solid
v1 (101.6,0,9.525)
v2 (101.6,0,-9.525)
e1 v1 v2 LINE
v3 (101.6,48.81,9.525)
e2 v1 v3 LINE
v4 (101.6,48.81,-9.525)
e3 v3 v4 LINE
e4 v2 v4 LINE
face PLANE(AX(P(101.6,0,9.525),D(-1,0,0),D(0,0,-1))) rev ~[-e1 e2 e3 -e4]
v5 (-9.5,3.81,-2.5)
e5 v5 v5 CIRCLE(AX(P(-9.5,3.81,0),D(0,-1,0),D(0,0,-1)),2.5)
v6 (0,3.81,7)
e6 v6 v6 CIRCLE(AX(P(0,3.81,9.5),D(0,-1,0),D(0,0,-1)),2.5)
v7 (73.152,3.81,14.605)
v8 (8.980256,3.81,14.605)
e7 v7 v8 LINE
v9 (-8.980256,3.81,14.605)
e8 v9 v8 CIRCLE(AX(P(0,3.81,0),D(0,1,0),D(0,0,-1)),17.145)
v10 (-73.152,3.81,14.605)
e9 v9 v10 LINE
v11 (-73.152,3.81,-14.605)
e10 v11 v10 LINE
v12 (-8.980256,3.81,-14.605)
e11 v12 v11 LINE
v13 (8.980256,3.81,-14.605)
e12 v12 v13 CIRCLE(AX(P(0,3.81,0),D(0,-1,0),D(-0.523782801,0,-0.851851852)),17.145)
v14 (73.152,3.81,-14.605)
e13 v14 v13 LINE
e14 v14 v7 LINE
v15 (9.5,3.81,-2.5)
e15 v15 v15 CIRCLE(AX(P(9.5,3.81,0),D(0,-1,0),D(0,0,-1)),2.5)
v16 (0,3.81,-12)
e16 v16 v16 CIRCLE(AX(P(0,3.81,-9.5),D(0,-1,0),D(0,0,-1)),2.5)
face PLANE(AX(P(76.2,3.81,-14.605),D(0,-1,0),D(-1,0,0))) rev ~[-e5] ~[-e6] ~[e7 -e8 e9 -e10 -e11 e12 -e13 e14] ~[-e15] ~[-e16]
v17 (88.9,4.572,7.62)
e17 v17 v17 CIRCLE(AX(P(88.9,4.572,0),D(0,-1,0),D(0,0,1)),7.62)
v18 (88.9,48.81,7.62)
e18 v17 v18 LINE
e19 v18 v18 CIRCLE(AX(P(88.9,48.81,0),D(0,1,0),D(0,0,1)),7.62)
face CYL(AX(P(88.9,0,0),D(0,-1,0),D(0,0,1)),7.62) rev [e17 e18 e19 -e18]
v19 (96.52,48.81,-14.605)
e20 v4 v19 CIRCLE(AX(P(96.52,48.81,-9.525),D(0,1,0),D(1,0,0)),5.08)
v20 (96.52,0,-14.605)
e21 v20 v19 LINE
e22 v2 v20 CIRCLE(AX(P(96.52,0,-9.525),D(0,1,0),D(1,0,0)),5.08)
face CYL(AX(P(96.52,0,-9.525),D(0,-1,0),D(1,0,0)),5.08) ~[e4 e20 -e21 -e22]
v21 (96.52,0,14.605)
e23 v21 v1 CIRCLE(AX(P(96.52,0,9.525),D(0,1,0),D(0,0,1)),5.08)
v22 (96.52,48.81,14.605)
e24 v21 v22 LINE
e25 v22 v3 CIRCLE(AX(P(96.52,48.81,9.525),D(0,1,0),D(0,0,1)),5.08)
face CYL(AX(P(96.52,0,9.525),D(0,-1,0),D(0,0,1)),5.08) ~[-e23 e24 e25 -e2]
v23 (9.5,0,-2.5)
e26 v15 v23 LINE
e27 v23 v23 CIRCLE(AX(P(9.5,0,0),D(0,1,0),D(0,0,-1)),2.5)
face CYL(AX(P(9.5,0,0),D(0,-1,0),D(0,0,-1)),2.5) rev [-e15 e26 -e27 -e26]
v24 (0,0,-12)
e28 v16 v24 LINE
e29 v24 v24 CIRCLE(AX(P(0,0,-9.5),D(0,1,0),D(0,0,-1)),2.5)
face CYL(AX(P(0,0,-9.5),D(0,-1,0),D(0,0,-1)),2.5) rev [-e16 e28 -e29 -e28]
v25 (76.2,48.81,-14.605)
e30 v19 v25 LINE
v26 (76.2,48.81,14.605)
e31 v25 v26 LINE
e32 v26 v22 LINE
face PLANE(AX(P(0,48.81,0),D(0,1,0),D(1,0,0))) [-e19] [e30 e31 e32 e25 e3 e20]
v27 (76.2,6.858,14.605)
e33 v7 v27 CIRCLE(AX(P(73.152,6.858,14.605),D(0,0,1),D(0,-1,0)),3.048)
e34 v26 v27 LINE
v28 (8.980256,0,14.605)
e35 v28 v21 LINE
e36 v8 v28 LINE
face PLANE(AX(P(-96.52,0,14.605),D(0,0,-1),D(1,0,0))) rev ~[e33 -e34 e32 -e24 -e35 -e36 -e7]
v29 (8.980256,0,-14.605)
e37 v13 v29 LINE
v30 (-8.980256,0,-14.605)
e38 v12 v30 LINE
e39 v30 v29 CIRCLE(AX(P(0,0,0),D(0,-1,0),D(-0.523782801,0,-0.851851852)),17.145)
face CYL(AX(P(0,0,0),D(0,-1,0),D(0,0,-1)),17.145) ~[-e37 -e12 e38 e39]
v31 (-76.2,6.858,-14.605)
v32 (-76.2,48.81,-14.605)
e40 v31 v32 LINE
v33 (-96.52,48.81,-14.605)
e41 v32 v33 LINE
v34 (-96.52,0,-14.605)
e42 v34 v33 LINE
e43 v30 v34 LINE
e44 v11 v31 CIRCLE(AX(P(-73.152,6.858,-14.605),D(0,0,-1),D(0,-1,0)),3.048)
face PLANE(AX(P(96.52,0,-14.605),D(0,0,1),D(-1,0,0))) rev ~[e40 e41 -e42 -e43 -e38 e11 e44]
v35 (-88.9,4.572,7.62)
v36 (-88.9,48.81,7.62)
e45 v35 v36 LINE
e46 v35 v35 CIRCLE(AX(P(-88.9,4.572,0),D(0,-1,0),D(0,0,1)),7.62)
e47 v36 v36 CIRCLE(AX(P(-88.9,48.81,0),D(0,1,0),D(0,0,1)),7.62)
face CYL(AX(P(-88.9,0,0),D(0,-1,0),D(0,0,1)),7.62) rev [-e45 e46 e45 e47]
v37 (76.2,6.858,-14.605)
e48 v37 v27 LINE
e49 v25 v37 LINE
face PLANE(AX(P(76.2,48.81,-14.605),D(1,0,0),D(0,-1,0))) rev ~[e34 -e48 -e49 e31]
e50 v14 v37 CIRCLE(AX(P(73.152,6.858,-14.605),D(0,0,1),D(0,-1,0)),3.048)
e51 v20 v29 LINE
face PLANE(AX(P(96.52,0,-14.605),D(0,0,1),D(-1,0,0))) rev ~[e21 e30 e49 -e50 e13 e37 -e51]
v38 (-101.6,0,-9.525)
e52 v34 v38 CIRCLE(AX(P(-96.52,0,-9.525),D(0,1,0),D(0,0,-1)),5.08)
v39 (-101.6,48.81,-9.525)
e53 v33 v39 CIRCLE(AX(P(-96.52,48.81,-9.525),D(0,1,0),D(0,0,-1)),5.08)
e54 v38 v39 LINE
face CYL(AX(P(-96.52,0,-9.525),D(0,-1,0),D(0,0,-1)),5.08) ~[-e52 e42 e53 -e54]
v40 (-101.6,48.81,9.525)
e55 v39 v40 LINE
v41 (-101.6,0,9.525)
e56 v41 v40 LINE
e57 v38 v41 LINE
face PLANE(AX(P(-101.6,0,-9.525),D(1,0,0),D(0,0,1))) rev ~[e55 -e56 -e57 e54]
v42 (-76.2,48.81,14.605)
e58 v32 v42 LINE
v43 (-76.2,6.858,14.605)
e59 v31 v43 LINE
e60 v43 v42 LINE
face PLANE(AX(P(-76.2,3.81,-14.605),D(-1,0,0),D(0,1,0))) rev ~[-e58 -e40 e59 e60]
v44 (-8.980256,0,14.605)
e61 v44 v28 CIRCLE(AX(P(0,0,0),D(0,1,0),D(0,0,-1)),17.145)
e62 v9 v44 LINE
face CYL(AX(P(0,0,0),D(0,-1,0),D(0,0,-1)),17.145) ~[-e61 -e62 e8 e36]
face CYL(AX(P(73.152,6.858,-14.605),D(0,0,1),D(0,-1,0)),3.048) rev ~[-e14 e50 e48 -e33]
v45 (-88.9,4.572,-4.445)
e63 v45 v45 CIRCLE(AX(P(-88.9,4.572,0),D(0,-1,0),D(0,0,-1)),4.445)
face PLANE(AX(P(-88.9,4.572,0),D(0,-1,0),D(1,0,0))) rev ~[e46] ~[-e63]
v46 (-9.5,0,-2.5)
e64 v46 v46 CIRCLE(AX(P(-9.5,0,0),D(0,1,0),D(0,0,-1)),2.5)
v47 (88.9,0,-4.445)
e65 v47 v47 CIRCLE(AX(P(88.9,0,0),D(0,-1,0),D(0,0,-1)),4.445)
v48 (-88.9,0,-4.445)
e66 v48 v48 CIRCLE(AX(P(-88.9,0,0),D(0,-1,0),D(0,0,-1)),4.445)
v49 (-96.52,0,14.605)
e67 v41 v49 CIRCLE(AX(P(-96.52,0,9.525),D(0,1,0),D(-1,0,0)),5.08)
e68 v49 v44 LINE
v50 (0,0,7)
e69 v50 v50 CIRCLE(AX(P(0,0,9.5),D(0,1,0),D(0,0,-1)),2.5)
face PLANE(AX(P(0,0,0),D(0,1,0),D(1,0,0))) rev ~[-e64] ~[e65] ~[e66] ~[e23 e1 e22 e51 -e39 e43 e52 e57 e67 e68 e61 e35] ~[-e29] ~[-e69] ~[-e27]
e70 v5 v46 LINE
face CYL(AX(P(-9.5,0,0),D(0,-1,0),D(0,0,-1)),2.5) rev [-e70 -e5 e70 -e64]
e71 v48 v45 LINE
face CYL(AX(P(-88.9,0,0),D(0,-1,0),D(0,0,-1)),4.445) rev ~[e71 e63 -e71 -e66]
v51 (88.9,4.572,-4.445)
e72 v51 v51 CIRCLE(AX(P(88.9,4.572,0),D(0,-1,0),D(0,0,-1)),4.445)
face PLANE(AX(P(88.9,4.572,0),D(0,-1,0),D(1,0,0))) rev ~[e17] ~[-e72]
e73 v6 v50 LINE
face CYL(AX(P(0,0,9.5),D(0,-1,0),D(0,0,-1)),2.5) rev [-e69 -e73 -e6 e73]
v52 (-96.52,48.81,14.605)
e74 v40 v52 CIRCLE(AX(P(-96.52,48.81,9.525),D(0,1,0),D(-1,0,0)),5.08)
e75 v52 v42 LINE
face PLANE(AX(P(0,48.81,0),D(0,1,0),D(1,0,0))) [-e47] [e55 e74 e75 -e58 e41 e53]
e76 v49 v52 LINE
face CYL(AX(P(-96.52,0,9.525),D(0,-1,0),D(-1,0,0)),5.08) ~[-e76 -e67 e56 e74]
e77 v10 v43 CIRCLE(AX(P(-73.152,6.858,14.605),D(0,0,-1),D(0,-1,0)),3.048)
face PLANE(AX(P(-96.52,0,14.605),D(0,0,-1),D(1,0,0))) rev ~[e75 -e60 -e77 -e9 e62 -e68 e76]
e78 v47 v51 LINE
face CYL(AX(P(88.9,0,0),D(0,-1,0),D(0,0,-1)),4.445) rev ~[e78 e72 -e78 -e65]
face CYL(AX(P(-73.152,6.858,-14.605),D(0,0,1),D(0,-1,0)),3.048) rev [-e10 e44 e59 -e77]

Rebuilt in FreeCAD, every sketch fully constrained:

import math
import FreeCAD as App
import Part
import Sketcher

V = App.Vector
Q = App.Units.Quantity


def edges_at(feature, points):
    """Names of the edges that pass closest to the given points."""
    edges = feature.Shape.Edges
    near = lambda p: min(range(len(edges)), key=lambda i: edges[i].distToShape(Part.Vertex(*p))[0])
    return sorted({f"Edge{near(p) + 1}" for p in points})


def add_polygon(sketch, points):
    """Adds a closed chain of lines whose ends are joined by coincident constraints."""
    first, n = sketch.GeometryCount, len(points)
    for a, b in zip(points, points[1:] + points[:1]):
        sketch.addGeometry(Part.LineSegment(App.Vector(*a, 0), App.Vector(*b, 0)), False)
    for i in range(n):
        sketch.addConstraint(Sketcher.Constraint("Coincident", first + i, 2, first + (i + 1) % n, 1))

doc = App.newDocument("Part")
params = doc.addObject("Spreadsheet::Sheet", "Params")
for row, (alias, value) in enumerate([
    ("sketch1_diameter", "1.35 in"),
    ("pad1_length", "0.15 in"),
    ("sketch2_diameter", "0.6 in"),
    ("sketch2_radius", "0.2 in"),
    ("sketch2_width", "7.6 in"),
    ("sketch2_height", "0.75 in"),
    ("pad2_length", "45 mm"),
    ("pad2_length2", "0.15 in"),
    ("sketch3_width", "6 in"),
    ("sketch4_diameter", "0.7 in"),
    ("sketch4_diameter2", "0.35 in"),
    ("pad3_length", "0.18 in"),
    ("fillet_radius", "0.12 in"),
], start=1):
    params.set(f"A{row}", alias)
    params.set(f"B{row}", "=" + value)
    params.setAlias(f"B{row}", alias)

body = doc.addObject("PartDesign::Body", "Body")

# Sketch on XZ plane
sketch1 = doc.addObject("Sketcher::SketchObject", "Sketch")
body.addObject(sketch1)
sketch1.AttachmentSupport = (doc.XZ_Plane, [""])
sketch1.MapMode = "FlatFace"
sketch1.addGeometry([
    Part.Circle(V(0, 0, 0), V(0, 0, 1), 17.145),  # 0
    Part.Circle(V(0, 9.5, 0), V(0, 0, 1), 2.5),  # 1
    Part.Circle(V(9.5, 0, 0), V(0, 0, 1), 2.5),  # 2
    Part.Circle(V(-9.5, 0, 0), V(0, 0, 1), 2.5),  # 3
    Part.Circle(V(0, -9.5, 0), V(0, 0, 1), 2.5),  # 4
], False)
sketch1.addConstraint([
    Sketcher.Constraint("Coincident", 0, 3, -1, 1),
    Sketcher.Constraint("Equal", 1, 2),
    Sketcher.Constraint("Equal", 2, 3),
    Sketcher.Constraint("Equal", 3, 4),
    Sketcher.Constraint("Symmetric", 2, 3, 3, 3, -1, 1),
    Sketcher.Constraint("Symmetric", 1, 3, 4, 3, -1, 1),
    Sketcher.Constraint("PointOnObject", 1, 3, -2),
    Sketcher.Constraint("PointOnObject", 2, 3, -1),
    Sketcher.Constraint("Diameter", 0, Q("1.35 in")),
    Sketcher.Constraint("Diameter", 1, 5.0),
    Sketcher.Constraint("DistanceY", -1, 1, 1, 3, 9.5),
    Sketcher.Constraint("DistanceX", -1, 1, 2, 3, 9.5),
])
sketch1.setExpression("Constraints[8]", "Params.sketch1_diameter")
pad1 = doc.addObject("PartDesign::Pad", "Pad")
body.addObject(pad1)
pad1.Profile = sketch1
pad1.setExpression("Length", "Params.pad1_length")
pad1.Reversed = True

# Sketch on XZ plane
sketch2 = doc.addObject("Sketcher::SketchObject", "Sketch001")
body.addObject(sketch2)
sketch2.AttachmentSupport = (doc.XZ_Plane, [""])
sketch2.MapMode = "FlatFace"
sketch2.AttachmentOffset = App.Placement(V(0, 0, -0.15 * 25.4), App.Rotation())
sketch2.addGeometry([
    Part.LineSegment(V(-96.52, 14.605, 0), V(96.52, 14.605, 0)),  # 0
    Part.ArcOfCircle(Part.Circle(V(96.52, 9.525, 0), V(0, 0, 1), 5.08), math.radians(0), math.radians(90)),  # 1
    Part.LineSegment(V(101.6, 9.525, 0), V(101.6, -9.525, 0)),  # 2
    Part.ArcOfCircle(Part.Circle(V(96.52, -9.525, 0), V(0, 0, 1), 5.08), math.radians(-90), math.radians(0)),  # 3
    Part.LineSegment(V(96.52, -14.605, 0), V(-96.52, -14.605, 0)),  # 4
    Part.ArcOfCircle(Part.Circle(V(-96.52, -9.525, 0), V(0, 0, 1), 5.08), math.radians(-180), math.radians(-90)),  # 5
    Part.LineSegment(V(-101.6, -9.525, 0), V(-101.6, 9.525, 0)),  # 6
    Part.ArcOfCircle(Part.Circle(V(-96.52, 9.525, 0), V(0, 0, 1), 5.08), math.radians(90), math.radians(180)),  # 7
    Part.Circle(V(0, 9.5, 0), V(0, 0, 1), 2.5),  # 8
    Part.Circle(V(-88.9, 0, 0), V(0, 0, 1), 7.62),  # 9
    Part.Circle(V(-9.5, 0, 0), V(0, 0, 1), 2.5),  # 10
    Part.Circle(V(9.5, 0, 0), V(0, 0, 1), 2.5),  # 11
    Part.Circle(V(88.9, 0, 0), V(0, 0, 1), 7.62),  # 12
    Part.Circle(V(0, -9.5, 0), V(0, 0, 1), 2.5),  # 13
], False)
sketch2.addConstraint([
    Sketcher.Constraint("Tangent", 0, 2, 1, 2),
    Sketcher.Constraint("Tangent", 1, 1, 2, 1),
    Sketcher.Constraint("Tangent", 2, 2, 3, 2),
    Sketcher.Constraint("Tangent", 3, 1, 4, 1),
    Sketcher.Constraint("Tangent", 4, 2, 5, 2),
    Sketcher.Constraint("Tangent", 5, 1, 6, 1),
    Sketcher.Constraint("Tangent", 6, 2, 7, 2),
    Sketcher.Constraint("Tangent", 7, 1, 0, 1),
    Sketcher.Constraint("Horizontal", 0),
    Sketcher.Constraint("Vertical", 2),
    Sketcher.Constraint("Horizontal", 4),
    Sketcher.Constraint("Vertical", 6),
    Sketcher.Constraint("Equal", 1, 3),
    Sketcher.Constraint("Equal", 3, 5),
    Sketcher.Constraint("Equal", 5, 7),
    Sketcher.Constraint("Equal", 8, 10),
    Sketcher.Constraint("Equal", 10, 11),
    Sketcher.Constraint("Equal", 9, 12),
    Sketcher.Constraint("Equal", 11, 13),
    Sketcher.Constraint("Symmetric", 1, 3, 5, 3, -1, 1),
    Sketcher.Constraint("Symmetric", 10, 3, 11, 3, -1, 1),
    Sketcher.Constraint("Symmetric", 9, 3, 12, 3, -1, 1),
    Sketcher.Constraint("Symmetric", 8, 3, 13, 3, -1, 1),
    Sketcher.Constraint("PointOnObject", 8, 3, -2),
    Sketcher.Constraint("PointOnObject", 9, 3, -1),
    Sketcher.Constraint("PointOnObject", 10, 3, -1),
    Sketcher.Constraint("Diameter", 9, Q("0.6 in")),
    Sketcher.Constraint("Radius", 1, Q("0.2 in")),
    Sketcher.Constraint("DistanceX", 0, 1, 0, 2, Q("7.6 in")),
    Sketcher.Constraint("DistanceY", 2, 2, 2, 1, Q("0.75 in")),
    Sketcher.Constraint("DistanceX", 9, 3, -1, 1, Q("3.5 in")),
    Sketcher.Constraint("Diameter", 8, 5.0),
    Sketcher.Constraint("DistanceY", -1, 1, 8, 3, 9.5),
    Sketcher.Constraint("DistanceX", 10, 3, -1, 1, 9.5),
])
sketch2.setExpression("Constraints[26]", "Params.sketch2_diameter")
sketch2.setExpression("Constraints[27]", "Params.sketch2_radius")
sketch2.setExpression("Constraints[28]", "Params.sketch2_width")
sketch2.setExpression("Constraints[29]", "Params.sketch2_height")
pad2 = doc.addObject("PartDesign::Pad", "Pad001")
body.addObject(pad2)
pad2.Profile = sketch2
pad2.Type = "TwoLengths"
pad2.setExpression("Length", "Params.pad2_length")
pad2.setExpression("Length2", "Params.pad2_length2")
pad2.Reversed = True

# Sketch on XY plane
sketch3 = doc.addObject("Sketcher::SketchObject", "Sketch002")
body.addObject(sketch3)
sketch3.AttachmentSupport = (doc.XY_Plane, [""])
sketch3.MapMode = "FlatFace"
sketch3.AttachmentOffset = App.Placement(V(0, 0, -0.575 * 25.4), App.Rotation())
add_polygon(sketch3, [(76.2, 3.81), (-76.2, 3.81), (-76.2, 48.81), (76.2, 48.81)])  # lines 0-3
sketch3.addConstraint([
    Sketcher.Constraint("Horizontal", 0),
    Sketcher.Constraint("Vertical", 1),
    Sketcher.Constraint("Horizontal", 2),
    Sketcher.Constraint("Vertical", 3),
    Sketcher.Constraint("DistanceX", 0, 2, 0, 1, Q("6 in")),
    Sketcher.Constraint("DistanceX", 0, 2, -1, 1, Q("3 in")),
    Sketcher.Constraint("DistanceY", -1, 1, 0, 2, Q("0.15 in")),
    Sketcher.Constraint("DistanceY", 1, 1, 1, 2, 45.0),
])
sketch3.setExpression("Constraints[8]", "Params.sketch3_width")
pocket1 = doc.addObject("PartDesign::Pocket", "Pocket")
body.addObject(pocket1)
pocket1.Profile = sketch3
pocket1.Type = "ThroughAll"
pocket1.Reversed = True

# Sketch on XZ plane
sketch4 = doc.addObject("Sketcher::SketchObject", "Sketch003")
body.addObject(sketch4)
sketch4.AttachmentSupport = (doc.XZ_Plane, [""])
sketch4.MapMode = "FlatFace"
sketch4.addGeometry([
    Part.Circle(V(-88.9, 0, 0), V(0, 0, 1), 8.89),
    Part.Circle(V(-88.9, 0, 0), V(0, 0, 1), 4.445),
    Part.Circle(V(88.9, 0, 0), V(0, 0, 1), 8.89),
    Part.Circle(V(88.9, 0, 0), V(0, 0, 1), 4.445),
], False)
sketch4.addConstraint([
    Sketcher.Constraint("Coincident", 1, 3, 0, 3),
    Sketcher.Constraint("Coincident", 3, 3, 2, 3),
    Sketcher.Constraint("Equal", 0, 2),
    Sketcher.Constraint("Equal", 1, 3),
    Sketcher.Constraint("Symmetric", 0, 3, 2, 3, -1, 1),
    Sketcher.Constraint("PointOnObject", 0, 3, -1),
    Sketcher.Constraint("Diameter", 0, Q("0.7 in")),
    Sketcher.Constraint("Diameter", 1, Q("0.35 in")),
    Sketcher.Constraint("DistanceX", 0, 3, 2, 3, Q("7 in")),
])
sketch4.setExpression("Constraints[6]", "Params.sketch4_diameter")
sketch4.setExpression("Constraints[7]", "Params.sketch4_diameter2")
pad3 = doc.addObject("PartDesign::Pad", "Pad002")
body.addObject(pad3)
pad3.Profile = sketch4
pad3.setExpression("Length", "Params.pad3_length")
pad3.Reversed = True
doc.recompute()

fillet = doc.addObject("PartDesign::Fillet", "Fillet")
body.addObject(fillet)
fillet.Base = (pad3, edges_at(pad3, [(-76.2, 3.81, 0), (76.2, 3.81, 0)]))
fillet.setExpression("Radius", "Params.fillet_radius")

doc.recompute()
